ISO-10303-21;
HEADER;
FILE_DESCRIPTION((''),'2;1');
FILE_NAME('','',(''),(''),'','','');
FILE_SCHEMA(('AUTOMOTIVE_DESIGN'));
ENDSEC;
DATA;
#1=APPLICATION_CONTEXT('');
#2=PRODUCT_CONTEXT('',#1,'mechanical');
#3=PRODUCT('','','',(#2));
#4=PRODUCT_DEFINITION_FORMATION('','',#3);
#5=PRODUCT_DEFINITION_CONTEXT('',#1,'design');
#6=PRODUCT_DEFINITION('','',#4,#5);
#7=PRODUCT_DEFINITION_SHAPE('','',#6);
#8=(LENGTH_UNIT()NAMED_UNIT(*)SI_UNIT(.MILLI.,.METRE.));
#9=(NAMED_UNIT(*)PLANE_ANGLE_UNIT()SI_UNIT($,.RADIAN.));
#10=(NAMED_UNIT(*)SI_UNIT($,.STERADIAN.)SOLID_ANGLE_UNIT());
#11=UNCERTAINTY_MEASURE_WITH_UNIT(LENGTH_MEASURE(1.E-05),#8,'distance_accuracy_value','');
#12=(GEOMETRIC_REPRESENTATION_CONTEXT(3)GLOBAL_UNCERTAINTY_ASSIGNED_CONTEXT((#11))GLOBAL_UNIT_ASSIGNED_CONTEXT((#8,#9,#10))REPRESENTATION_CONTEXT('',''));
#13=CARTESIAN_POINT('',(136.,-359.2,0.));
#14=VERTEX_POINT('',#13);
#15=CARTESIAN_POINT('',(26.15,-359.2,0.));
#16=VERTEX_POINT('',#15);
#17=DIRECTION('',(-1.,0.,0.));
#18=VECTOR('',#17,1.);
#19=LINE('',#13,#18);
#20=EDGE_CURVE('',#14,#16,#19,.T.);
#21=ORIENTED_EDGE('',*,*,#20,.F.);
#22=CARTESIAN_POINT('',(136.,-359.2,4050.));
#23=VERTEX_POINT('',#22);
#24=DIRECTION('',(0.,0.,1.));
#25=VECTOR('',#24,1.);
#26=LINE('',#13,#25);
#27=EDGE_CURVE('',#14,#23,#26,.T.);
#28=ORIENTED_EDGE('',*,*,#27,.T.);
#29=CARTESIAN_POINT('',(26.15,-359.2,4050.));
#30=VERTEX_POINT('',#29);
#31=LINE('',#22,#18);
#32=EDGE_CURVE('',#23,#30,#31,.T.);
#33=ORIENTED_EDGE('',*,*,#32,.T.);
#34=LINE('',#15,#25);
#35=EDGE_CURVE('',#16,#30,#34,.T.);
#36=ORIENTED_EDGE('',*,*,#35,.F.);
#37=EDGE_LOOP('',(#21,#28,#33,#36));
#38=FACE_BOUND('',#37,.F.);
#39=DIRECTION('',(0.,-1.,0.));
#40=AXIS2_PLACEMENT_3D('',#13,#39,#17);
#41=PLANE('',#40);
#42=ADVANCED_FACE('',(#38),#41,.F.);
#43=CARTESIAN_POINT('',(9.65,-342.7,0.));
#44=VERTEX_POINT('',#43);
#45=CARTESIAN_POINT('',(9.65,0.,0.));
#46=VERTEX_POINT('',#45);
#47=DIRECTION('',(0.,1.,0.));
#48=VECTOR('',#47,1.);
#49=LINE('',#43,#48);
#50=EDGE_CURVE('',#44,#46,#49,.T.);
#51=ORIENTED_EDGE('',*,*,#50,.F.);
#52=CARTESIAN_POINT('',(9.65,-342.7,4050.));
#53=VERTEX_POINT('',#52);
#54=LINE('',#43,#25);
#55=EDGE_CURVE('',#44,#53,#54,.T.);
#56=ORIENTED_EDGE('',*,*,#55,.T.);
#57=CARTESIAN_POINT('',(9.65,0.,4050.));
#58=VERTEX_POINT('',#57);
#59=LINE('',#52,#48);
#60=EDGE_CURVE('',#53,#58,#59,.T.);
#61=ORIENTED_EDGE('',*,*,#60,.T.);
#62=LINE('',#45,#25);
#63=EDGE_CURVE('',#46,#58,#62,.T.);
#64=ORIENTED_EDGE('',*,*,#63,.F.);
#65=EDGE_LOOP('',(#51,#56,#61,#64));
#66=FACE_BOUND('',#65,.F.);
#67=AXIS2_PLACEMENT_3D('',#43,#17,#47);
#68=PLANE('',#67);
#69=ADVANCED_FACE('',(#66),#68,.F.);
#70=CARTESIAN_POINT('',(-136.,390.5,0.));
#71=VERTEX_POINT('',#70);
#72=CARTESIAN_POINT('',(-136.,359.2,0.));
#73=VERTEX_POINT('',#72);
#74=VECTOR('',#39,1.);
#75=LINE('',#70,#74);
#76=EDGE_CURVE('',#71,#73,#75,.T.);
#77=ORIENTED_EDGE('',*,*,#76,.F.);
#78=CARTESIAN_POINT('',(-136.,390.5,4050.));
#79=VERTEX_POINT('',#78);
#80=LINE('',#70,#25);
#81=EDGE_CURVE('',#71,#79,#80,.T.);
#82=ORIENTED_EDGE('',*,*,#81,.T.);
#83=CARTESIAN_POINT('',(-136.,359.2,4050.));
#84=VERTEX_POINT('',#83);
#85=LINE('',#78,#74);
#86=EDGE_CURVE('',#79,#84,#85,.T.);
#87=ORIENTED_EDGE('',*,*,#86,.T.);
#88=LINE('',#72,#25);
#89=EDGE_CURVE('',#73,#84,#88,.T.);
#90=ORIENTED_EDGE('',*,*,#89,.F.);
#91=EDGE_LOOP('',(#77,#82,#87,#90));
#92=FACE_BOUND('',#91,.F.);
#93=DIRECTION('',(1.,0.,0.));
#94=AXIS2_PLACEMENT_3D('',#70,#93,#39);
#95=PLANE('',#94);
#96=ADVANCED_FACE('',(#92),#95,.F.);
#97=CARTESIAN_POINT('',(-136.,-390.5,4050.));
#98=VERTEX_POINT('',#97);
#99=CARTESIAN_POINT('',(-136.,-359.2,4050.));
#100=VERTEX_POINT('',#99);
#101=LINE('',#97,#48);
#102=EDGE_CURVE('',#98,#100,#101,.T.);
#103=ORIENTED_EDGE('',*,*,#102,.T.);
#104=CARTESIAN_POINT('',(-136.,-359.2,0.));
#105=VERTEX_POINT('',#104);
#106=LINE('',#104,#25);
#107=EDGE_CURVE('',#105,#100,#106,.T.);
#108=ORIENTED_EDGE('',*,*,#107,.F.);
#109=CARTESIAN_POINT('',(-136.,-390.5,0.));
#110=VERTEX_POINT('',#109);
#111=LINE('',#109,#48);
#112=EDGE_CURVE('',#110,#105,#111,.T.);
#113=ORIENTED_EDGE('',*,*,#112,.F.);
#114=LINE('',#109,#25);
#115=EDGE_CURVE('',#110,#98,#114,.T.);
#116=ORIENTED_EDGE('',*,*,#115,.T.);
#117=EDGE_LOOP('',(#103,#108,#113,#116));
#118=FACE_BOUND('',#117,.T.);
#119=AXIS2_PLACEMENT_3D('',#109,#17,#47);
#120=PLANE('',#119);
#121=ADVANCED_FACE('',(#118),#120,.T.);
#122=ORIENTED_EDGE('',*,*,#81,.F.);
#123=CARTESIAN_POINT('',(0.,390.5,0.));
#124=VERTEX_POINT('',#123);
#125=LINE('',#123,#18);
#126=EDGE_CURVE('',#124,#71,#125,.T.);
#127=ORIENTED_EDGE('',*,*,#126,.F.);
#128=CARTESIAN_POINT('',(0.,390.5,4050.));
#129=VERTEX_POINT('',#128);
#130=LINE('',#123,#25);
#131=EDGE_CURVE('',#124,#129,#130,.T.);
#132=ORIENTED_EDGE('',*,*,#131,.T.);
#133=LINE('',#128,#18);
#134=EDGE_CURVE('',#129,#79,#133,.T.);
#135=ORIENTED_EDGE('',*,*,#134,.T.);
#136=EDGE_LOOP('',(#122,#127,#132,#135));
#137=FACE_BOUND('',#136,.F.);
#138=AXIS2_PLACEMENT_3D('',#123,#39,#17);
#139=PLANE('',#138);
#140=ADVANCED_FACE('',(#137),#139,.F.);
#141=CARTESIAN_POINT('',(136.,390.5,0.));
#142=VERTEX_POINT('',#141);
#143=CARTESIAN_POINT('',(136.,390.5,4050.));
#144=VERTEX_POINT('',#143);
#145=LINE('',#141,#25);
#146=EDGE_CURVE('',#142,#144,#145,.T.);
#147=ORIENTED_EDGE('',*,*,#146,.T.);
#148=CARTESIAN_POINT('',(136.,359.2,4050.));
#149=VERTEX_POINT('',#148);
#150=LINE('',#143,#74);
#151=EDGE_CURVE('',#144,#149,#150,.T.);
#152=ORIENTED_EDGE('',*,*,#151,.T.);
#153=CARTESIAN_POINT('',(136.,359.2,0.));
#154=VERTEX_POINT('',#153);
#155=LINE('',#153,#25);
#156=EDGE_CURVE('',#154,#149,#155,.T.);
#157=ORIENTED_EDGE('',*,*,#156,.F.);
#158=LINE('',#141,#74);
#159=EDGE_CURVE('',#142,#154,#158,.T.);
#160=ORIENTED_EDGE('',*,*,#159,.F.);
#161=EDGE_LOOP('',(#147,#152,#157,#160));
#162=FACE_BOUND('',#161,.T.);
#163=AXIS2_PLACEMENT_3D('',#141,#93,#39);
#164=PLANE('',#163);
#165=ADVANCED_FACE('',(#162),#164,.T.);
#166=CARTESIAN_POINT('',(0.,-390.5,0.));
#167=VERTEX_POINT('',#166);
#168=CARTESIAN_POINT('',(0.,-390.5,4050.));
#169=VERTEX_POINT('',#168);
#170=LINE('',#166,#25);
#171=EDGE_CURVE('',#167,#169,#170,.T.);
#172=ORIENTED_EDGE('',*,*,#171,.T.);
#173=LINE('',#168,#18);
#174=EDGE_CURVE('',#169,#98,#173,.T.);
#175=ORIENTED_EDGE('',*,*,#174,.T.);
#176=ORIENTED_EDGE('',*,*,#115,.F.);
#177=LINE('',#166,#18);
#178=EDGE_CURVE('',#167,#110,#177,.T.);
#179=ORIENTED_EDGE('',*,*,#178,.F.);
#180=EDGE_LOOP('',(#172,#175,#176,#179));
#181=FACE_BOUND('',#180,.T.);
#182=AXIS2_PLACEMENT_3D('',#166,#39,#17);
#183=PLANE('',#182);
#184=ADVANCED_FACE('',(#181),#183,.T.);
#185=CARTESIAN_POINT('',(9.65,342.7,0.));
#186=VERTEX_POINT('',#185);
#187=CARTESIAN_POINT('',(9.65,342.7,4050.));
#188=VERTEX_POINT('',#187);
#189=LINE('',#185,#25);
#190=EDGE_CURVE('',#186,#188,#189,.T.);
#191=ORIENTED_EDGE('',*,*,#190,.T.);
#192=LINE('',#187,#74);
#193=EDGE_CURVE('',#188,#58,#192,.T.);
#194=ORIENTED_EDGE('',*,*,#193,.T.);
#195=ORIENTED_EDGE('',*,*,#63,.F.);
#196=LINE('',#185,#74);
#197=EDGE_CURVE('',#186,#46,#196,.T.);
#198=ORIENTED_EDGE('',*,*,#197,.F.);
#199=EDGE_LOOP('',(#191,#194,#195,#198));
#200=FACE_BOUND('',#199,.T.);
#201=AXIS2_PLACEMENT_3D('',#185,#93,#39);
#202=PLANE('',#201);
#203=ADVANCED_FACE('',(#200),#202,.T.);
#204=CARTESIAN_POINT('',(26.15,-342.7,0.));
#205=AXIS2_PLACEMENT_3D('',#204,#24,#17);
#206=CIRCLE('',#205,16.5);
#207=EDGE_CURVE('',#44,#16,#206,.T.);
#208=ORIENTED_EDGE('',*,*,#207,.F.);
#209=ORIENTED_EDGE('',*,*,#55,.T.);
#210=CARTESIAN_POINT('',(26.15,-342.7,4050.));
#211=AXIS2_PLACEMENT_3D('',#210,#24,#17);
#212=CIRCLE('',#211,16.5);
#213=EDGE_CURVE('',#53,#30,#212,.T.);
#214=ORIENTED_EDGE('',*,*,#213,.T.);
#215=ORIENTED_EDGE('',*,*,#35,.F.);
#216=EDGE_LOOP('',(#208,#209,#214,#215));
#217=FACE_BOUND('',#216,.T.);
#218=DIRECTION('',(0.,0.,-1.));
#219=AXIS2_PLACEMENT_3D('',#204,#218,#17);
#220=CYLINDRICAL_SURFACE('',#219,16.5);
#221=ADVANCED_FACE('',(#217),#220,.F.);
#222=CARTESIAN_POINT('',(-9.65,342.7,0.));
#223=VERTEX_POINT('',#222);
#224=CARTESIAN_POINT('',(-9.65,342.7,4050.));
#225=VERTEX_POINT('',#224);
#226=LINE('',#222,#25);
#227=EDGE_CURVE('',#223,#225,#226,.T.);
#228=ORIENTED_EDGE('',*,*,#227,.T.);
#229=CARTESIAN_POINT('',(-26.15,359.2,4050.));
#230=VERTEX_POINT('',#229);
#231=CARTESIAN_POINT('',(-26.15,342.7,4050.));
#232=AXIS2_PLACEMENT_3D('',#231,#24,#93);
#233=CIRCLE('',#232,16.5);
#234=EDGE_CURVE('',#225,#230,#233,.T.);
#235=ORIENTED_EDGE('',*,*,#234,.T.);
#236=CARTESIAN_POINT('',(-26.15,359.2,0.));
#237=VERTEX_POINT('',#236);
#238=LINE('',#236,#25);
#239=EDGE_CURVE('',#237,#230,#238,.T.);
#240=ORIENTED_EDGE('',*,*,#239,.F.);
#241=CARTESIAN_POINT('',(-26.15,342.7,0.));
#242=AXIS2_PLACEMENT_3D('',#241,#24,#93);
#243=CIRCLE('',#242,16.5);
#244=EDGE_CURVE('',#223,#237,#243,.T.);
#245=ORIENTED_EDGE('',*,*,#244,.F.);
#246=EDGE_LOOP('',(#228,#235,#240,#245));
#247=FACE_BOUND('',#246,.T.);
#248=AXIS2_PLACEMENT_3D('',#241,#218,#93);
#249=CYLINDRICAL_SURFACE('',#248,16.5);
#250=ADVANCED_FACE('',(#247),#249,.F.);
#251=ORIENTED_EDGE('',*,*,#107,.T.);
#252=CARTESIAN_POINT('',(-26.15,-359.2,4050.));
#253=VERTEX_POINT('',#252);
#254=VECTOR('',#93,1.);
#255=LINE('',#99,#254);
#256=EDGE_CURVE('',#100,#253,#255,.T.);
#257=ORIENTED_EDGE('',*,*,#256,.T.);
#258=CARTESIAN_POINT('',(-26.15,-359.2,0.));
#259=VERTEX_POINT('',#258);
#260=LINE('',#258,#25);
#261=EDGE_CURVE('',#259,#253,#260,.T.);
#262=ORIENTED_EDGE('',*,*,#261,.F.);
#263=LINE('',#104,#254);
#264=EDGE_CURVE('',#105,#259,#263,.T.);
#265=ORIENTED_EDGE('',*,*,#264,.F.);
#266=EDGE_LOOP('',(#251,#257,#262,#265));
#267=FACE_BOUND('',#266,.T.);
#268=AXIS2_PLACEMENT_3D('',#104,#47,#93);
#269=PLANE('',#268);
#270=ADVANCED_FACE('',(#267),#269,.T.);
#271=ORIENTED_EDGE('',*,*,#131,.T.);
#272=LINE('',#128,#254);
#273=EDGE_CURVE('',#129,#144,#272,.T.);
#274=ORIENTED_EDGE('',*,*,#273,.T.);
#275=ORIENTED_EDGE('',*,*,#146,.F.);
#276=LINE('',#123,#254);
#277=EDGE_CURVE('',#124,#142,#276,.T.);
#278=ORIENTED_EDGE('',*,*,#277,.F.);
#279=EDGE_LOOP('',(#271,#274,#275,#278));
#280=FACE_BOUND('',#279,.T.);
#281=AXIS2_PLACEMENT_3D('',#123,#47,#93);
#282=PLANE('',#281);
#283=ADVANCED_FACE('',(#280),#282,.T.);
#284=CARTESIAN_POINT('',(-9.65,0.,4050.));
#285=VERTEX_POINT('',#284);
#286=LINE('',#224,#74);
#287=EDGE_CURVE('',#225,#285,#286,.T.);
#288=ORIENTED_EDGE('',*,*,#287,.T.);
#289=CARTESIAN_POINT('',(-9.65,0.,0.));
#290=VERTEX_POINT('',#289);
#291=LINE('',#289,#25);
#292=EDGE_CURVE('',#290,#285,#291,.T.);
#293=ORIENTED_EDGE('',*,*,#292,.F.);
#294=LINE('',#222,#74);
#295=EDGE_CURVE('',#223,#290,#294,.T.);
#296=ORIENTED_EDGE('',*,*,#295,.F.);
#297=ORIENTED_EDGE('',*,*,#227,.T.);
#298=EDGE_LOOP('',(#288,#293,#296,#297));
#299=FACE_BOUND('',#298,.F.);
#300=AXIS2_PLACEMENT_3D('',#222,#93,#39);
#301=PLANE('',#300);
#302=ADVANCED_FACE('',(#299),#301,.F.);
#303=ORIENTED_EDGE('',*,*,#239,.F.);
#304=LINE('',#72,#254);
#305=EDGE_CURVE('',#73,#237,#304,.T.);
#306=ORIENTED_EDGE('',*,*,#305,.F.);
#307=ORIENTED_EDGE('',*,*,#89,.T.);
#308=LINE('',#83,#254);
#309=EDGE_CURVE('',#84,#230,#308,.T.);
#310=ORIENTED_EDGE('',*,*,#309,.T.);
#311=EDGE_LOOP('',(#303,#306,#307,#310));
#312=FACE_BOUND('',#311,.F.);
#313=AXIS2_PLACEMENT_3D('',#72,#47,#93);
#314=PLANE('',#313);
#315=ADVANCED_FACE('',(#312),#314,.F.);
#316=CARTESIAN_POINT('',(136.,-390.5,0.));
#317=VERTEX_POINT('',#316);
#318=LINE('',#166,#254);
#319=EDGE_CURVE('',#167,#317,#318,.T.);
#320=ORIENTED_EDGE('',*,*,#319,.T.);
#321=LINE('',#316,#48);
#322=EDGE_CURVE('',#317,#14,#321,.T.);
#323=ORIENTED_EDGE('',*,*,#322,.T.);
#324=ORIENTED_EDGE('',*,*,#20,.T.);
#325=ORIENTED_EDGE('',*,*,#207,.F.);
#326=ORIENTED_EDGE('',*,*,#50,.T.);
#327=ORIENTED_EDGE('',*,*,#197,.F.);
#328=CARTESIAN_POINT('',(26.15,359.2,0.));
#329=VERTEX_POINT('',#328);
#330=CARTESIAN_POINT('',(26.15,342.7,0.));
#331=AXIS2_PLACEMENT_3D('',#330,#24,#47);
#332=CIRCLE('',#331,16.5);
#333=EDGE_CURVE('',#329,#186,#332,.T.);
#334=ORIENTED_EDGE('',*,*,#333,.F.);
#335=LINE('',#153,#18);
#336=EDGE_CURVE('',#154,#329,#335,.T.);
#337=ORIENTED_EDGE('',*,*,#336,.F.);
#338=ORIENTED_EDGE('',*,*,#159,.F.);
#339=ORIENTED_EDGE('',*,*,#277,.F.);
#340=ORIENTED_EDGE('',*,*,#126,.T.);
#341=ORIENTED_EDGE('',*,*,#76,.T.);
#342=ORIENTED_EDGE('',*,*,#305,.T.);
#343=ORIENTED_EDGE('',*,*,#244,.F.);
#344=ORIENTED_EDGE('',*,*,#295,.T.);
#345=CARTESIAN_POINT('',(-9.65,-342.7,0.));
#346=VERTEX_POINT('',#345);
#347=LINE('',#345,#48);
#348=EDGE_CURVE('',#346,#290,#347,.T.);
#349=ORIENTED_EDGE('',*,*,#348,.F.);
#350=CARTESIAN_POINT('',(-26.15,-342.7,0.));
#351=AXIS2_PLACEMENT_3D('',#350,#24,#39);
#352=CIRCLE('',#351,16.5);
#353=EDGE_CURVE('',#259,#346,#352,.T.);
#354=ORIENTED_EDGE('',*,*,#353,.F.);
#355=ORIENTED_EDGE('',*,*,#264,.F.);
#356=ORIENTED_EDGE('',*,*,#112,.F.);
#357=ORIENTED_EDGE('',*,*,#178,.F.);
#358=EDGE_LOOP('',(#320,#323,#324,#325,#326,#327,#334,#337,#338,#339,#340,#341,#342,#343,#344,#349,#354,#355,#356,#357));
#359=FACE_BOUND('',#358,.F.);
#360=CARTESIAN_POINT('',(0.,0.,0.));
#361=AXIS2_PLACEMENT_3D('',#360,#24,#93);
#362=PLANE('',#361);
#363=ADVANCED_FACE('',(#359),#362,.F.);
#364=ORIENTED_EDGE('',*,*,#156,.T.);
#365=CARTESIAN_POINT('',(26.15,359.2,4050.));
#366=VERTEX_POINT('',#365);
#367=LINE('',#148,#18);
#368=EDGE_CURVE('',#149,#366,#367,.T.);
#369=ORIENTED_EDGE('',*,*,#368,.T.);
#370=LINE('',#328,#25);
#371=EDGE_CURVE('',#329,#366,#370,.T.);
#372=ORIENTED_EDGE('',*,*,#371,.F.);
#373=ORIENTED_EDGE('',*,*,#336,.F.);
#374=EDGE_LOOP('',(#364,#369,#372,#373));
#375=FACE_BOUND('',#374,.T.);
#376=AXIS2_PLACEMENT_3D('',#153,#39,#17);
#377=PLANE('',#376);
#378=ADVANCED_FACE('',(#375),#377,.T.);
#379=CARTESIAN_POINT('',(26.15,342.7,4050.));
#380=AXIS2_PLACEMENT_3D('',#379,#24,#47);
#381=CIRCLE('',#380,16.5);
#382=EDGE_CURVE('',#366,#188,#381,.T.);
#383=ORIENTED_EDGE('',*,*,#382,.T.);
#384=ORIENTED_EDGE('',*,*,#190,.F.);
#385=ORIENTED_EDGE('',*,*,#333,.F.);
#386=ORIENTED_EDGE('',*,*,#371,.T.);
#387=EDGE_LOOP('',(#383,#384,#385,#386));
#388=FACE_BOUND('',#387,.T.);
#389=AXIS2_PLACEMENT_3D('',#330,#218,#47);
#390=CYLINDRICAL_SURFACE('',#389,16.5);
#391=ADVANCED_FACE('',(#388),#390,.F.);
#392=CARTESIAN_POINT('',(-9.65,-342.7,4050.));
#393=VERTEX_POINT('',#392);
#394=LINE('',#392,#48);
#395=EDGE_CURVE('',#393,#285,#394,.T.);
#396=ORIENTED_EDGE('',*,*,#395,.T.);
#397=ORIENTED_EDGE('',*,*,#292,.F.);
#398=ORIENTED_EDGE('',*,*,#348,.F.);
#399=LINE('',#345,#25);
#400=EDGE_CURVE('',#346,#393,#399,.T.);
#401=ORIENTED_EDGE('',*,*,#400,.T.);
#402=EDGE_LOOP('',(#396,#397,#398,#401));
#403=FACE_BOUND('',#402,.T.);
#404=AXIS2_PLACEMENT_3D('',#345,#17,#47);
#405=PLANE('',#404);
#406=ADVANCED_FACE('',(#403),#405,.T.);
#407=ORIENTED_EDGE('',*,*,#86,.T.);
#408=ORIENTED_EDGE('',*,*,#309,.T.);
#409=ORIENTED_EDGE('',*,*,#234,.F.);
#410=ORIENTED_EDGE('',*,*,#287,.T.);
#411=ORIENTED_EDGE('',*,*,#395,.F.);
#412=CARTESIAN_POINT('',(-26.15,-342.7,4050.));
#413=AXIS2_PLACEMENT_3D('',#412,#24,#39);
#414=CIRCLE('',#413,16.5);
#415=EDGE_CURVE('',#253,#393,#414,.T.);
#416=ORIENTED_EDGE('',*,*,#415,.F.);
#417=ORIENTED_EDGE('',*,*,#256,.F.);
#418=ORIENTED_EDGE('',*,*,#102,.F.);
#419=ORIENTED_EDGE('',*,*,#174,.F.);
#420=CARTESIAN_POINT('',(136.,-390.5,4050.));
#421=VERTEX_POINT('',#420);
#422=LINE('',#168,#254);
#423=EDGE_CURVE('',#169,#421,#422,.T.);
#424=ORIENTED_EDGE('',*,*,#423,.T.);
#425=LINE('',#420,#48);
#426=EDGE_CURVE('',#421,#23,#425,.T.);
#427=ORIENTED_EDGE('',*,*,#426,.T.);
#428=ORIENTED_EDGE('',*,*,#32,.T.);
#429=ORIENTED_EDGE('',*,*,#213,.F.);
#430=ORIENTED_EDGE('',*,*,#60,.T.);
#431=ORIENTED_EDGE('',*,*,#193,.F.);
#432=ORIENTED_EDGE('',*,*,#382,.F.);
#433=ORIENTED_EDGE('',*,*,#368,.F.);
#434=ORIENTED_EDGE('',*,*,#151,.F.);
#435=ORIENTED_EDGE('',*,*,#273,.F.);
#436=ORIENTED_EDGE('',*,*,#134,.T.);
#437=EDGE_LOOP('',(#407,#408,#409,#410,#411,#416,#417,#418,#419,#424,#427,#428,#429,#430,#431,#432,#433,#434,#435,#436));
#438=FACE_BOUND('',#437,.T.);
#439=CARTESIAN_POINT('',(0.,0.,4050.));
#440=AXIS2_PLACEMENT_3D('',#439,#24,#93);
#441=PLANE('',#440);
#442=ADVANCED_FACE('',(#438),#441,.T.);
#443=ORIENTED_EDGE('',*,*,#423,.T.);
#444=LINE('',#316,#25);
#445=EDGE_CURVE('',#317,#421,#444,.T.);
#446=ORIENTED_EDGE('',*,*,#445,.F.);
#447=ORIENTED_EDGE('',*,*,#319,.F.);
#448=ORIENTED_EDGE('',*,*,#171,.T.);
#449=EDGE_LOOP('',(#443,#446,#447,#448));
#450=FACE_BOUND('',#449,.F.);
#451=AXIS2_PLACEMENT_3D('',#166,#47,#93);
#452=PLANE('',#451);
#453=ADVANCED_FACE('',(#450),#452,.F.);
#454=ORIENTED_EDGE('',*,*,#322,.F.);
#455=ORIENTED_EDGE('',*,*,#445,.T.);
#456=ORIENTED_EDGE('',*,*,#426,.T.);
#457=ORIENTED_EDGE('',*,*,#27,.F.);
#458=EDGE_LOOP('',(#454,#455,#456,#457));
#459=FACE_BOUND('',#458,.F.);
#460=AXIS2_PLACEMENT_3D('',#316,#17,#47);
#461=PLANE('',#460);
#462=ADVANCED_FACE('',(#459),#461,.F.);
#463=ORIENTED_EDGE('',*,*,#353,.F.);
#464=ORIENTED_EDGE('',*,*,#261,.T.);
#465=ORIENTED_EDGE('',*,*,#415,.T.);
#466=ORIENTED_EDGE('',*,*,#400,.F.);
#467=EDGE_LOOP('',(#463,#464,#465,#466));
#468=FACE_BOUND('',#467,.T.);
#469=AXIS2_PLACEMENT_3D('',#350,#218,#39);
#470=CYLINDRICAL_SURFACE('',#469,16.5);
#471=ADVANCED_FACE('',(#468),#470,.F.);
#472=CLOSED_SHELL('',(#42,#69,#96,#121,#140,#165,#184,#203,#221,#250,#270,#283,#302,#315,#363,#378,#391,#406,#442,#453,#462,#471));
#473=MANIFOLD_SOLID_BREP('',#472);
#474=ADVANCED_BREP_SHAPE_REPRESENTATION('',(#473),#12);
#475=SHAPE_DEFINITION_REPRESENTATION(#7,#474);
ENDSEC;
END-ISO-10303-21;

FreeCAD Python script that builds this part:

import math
import FreeCAD as App
import Part
import Sketcher

V = App.Vector

doc = App.newDocument("Part")
body = doc.addObject("PartDesign::Body", "Body")

# Sketch on XY plane
sketch1 = doc.addObject("Sketcher::SketchObject", "Sketch")
body.addObject(sketch1)
sketch1.AttachmentSupport = (doc.XY_Plane, [""])
sketch1.MapMode = "FlatFace"
sketch1.addGeometry(Part.LineSegment(V(-136, -359, 0), V(-136, -390, 0)), False)
sketch1.addGeometry(Part.LineSegment(V(-136, -390, 0), V(136, -390, 0)), False)
sketch1.addGeometry(Part.LineSegment(V(136, -390, 0), V(136, -359, 0)), False)
sketch1.addGeometry(Part.LineSegment(V(136, -359, 0), V(26, -359, 0)), False)
sketch1.addGeometry(Part.ArcOfCircle(Part.Circle(V(26, -343, 0), V(0, 0, 1), 16), math.radians(180), math.radians(270)), False)
sketch1.addGeometry(Part.LineSegment(V(10, -343, 0), V(10, 343, 0)), False)
sketch1.addGeometry(Part.ArcOfCircle(Part.Circle(V(26, 343, 0), V(0, 0, 1), 16), math.radians(90), math.radians(180)), False)
sketch1.addGeometry(Part.LineSegment(V(26, 359, 0), V(136, 359, 0)), False)
sketch1.addGeometry(Part.LineSegment(V(136, 359, 0), V(136, 390, 0)), False)
sketch1.addGeometry(Part.LineSegment(V(136, 390, 0), V(-136, 390, 0)), False)
sketch1.addGeometry(Part.LineSegment(V(-136, 390, 0), V(-136, 359, 0)), False)
sketch1.addGeometry(Part.LineSegment(V(-136, 359, 0), V(-26, 359, 0)), False)
sketch1.addGeometry(Part.ArcOfCircle(Part.Circle(V(-26, 343, 0), V(0, 0, 1), 16), math.radians(0), math.radians(90)), False)
sketch1.addGeometry(Part.LineSegment(V(-10, 343, 0), V(-10, -343, 0)), False)
sketch1.addGeometry(Part.ArcOfCircle(Part.Circle(V(-26, -343, 0), V(0, 0, 1), 16), math.radians(-90), math.radians(0)), False)
sketch1.addGeometry(Part.LineSegment(V(-26, -359, 0), V(-136, -359, 0)), False)
sketch1.addConstraint(Sketcher.Constraint("Coincident", 0, 2, 1, 1))
sketch1.addConstraint(Sketcher.Constraint("Coincident", 1, 2, 2, 1))
sketch1.addConstraint(Sketcher.Constraint("Coincident", 2, 2, 3, 1))
sketch1.addConstraint(Sketcher.Constraint("Tangent", 3, 2, 4, 2))
sketch1.addConstraint(Sketcher.Constraint("Tangent", 4, 1, 5, 1))
sketch1.addConstraint(Sketcher.Constraint("Tangent", 5, 2, 6, 2))
sketch1.addConstraint(Sketcher.Constraint("Tangent", 6, 1, 7, 1))
sketch1.addConstraint(Sketcher.Constraint("Coincident", 7, 2, 8, 1))
sketch1.addConstraint(Sketcher.Constraint("Coincident", 8, 2, 9, 1))
sketch1.addConstraint(Sketcher.Constraint("Coincident", 9, 2, 10, 1))
sketch1.addConstraint(Sketcher.Constraint("Coincident", 10, 2, 11, 1))
sketch1.addConstraint(Sketcher.Constraint("Tangent", 11, 2, 12, 2))
sketch1.addConstraint(Sketcher.Constraint("Tangent", 12, 1, 13, 1))
sketch1.addConstraint(Sketcher.Constraint("Tangent", 13, 2, 14, 2))
sketch1.addConstraint(Sketcher.Constraint("Tangent", 14, 1, 15, 1))
sketch1.addConstraint(Sketcher.Constraint("Coincident", 15, 2, 0, 1))
sketch1.addConstraint(Sketcher.Constraint("Vertical", 0))
sketch1.addConstraint(Sketcher.Constraint("Horizontal", 1))
sketch1.addConstraint(Sketcher.Constraint("Vertical", 2))
sketch1.addConstraint(Sketcher.Constraint("Horizontal", 3))
sketch1.addConstraint(Sketcher.Constraint("Vertical", 5))
sketch1.addConstraint(Sketcher.Constraint("Horizontal", 7))
sketch1.addConstraint(Sketcher.Constraint("Vertical", 8))
sketch1.addConstraint(Sketcher.Constraint("Horizontal", 9))
sketch1.addConstraint(Sketcher.Constraint("Vertical", 10))
sketch1.addConstraint(Sketcher.Constraint("Horizontal", 11))
sketch1.addConstraint(Sketcher.Constraint("Vertical", 13))
sketch1.addConstraint(Sketcher.Constraint("Horizontal", 15))
sketch1.addConstraint(Sketcher.Constraint("Equal", 4, 6))
sketch1.addConstraint(Sketcher.Constraint("Equal", 6, 12))
sketch1.addConstraint(Sketcher.Constraint("Equal", 12, 14))
sketch1.addConstraint(Sketcher.Constraint("Symmetric", 4, 3, 12, 3, -1, 1))
sketch1.addConstraint(Sketcher.Constraint("Symmetric", 0, 2, 8, 2, -1, 1))
sketch1.addConstraint(Sketcher.Constraint("Symmetric", 7, 2, 10, 2, -2))
sketch1.addConstraint(Sketcher.Constraint("Symmetric", 2, 2, 15, 2, -2))
sketch1.addConstraint(Sketcher.Constraint("Radius", 4, 16.5))
sketch1.addConstraint(Sketcher.Constraint("DistanceY", 0, 2, 0, 1, 31.3))
sketch1.addConstraint(Sketcher.Constraint("DistanceX", 0, 2, -1, 1, 136.0))
sketch1.addConstraint(Sketcher.Constraint("DistanceY", 0, 2, -1, 1, 390.5))
sketch1.addConstraint(Sketcher.Constraint("DistanceX", -1, 1, 4, 1, 9.65))
pad1 = doc.addObject("PartDesign::Pad", "Pad")
body.addObject(pad1)
pad1.Profile = sketch1
pad1.Length = 4050

doc.recompute()
